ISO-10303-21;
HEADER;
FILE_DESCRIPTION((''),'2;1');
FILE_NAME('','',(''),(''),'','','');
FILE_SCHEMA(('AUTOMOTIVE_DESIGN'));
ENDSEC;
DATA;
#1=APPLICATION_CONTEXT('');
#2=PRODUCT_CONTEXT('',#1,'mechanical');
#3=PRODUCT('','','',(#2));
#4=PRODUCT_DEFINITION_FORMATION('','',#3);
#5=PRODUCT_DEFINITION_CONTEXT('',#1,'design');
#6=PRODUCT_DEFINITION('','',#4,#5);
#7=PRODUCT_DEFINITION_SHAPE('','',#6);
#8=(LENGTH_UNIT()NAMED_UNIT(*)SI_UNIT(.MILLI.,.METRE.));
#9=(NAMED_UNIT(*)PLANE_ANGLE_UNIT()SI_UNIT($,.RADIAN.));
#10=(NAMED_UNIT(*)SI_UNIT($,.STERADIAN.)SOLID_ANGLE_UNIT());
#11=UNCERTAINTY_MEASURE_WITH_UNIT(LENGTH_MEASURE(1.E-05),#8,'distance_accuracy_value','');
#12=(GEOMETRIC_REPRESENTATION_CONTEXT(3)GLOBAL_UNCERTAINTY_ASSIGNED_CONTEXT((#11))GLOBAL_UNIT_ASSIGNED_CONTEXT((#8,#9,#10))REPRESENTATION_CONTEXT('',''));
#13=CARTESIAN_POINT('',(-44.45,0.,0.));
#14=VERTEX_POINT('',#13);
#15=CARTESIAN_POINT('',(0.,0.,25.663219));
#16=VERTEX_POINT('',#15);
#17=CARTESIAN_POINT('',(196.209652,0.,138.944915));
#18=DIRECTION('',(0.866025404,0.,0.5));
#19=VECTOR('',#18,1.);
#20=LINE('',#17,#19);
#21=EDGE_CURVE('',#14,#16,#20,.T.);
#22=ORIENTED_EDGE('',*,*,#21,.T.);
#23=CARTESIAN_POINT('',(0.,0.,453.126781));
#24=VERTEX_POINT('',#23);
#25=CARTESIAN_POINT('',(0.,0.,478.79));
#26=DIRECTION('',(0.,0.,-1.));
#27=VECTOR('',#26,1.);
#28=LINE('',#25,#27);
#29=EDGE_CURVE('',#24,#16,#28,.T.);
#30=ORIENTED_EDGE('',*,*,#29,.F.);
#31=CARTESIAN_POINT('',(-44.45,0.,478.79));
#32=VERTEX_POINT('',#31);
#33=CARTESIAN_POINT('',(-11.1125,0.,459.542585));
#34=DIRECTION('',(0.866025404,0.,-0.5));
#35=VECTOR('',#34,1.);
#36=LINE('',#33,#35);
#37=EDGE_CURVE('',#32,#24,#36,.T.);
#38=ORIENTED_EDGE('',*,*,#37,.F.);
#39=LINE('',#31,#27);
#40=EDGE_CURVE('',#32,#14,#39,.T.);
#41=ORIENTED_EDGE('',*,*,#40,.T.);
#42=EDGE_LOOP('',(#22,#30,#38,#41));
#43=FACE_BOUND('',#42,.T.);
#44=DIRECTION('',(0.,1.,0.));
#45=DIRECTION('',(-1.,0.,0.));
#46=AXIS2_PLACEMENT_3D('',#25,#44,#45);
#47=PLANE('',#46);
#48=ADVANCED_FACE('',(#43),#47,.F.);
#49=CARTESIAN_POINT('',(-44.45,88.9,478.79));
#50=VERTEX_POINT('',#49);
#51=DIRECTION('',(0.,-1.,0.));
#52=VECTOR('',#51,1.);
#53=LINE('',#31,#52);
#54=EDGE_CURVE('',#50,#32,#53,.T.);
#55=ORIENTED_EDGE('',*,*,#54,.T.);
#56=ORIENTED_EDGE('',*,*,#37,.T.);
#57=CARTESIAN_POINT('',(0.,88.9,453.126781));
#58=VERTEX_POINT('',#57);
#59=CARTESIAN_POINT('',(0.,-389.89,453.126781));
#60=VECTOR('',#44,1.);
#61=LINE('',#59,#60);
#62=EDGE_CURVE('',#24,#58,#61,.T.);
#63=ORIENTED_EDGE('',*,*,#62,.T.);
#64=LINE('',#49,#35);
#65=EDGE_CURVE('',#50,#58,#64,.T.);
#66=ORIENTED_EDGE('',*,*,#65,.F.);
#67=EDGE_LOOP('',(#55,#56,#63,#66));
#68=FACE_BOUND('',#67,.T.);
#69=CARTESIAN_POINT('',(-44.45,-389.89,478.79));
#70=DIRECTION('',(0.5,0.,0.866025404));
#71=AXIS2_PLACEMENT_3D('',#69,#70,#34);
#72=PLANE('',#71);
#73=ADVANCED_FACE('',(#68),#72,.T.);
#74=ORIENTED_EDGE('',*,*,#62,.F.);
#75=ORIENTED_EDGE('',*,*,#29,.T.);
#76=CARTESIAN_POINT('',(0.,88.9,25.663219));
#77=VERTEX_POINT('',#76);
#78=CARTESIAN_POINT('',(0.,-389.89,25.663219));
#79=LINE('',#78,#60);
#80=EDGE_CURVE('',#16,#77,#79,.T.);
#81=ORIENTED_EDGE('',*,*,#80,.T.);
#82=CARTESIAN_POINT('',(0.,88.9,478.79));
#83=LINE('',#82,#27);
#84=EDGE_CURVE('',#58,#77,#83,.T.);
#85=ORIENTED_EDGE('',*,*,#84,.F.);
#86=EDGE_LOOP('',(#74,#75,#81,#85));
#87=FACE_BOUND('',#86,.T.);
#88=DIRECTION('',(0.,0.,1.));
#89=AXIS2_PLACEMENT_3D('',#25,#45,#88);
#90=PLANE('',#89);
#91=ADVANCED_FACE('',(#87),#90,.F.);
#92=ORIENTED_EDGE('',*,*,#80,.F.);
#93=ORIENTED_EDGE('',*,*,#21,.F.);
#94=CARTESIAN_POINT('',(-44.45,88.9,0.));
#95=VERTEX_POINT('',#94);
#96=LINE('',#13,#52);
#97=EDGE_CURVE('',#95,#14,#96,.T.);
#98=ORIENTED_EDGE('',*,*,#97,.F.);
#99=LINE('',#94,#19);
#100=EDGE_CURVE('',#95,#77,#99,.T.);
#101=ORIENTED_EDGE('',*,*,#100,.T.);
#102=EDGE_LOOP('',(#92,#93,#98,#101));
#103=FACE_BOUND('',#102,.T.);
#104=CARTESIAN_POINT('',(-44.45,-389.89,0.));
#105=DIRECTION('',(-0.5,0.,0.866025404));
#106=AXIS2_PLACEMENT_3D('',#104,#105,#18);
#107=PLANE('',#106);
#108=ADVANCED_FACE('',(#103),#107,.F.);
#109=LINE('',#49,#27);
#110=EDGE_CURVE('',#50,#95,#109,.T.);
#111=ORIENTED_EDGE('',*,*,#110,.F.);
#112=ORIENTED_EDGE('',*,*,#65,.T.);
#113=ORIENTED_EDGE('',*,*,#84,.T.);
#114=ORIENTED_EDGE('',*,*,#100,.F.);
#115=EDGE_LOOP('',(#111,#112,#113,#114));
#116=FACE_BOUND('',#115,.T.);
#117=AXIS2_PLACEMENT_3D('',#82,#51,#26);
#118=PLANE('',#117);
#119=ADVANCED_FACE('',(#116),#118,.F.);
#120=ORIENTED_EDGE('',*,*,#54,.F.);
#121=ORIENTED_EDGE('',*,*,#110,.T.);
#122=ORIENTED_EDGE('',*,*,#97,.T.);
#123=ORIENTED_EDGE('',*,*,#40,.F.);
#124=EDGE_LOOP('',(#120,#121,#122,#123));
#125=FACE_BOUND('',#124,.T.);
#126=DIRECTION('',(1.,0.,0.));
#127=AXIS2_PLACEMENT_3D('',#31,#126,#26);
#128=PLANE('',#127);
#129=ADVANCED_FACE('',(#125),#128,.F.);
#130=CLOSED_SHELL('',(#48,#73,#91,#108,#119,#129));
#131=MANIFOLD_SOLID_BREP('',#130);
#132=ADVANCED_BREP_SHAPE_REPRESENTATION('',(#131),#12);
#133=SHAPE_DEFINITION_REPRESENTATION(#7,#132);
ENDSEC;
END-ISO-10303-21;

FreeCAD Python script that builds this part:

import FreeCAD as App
import Part
import Sketcher

V = App.Vector
Q = App.Units.Quantity


def add_polygon(sketch, points):
    """Adds a closed chain of lines whose ends are joined by coincident constraints."""
    first, n = sketch.GeometryCount, len(points)
    for a, b in zip(points, points[1:] + points[:1]):
        sketch.addGeometry(Part.LineSegment(App.Vector(*a, 0), App.Vector(*b, 0)), False)
    for i in range(n):
        sketch.addConstraint(Sketcher.Constraint("Coincident", first + i, 2, first + (i + 1) % n, 1))

doc = App.newDocument("Part")
body = doc.addObject("PartDesign::Body", "Body")

# Sketch on XY plane
sketch1 = body.newObject("Sketcher::SketchObject", "Sketch")
sketch1.AttachmentSupport = (doc.getObject("XY_Plane"), [""])
sketch1.MapMode = "FlatFace"
add_polygon(sketch1, [(-44, 89), (-44, 0), (0, 0), (0, 89)])  # lines 0-3
sketch1.addConstraint([
    Sketcher.Constraint("Vertical", 0),
    Sketcher.Constraint("Horizontal", 1),
    Sketcher.Constraint("Vertical", 2),
    Sketcher.Constraint("Horizontal", 3),
    Sketcher.Constraint("Coincident", 1, 2, -1, 1),
    Sketcher.Constraint("DistanceY", 0, 2, 0, 1, Q("3.5 in")),
    Sketcher.Constraint("DistanceX", 1, 1, 1, 2, Q("1.75 in")),
])
pad1 = body.newObject("PartDesign::Pad", "Pad")
pad1.Profile = sketch1
pad1.Length = Q("18.85 in")

# Sketch on XZ plane
sketch2 = body.newObject("Sketcher::SketchObject", "Sketch001")
sketch2.AttachmentSupport = (doc.getObject("XZ_Plane"), [""])
sketch2.MapMode = "FlatFace"
sketch2.AttachmentOffset = App.Placement(V(0, 0, -3.5 * 25.4), App.Rotation())
add_polygon(sketch2, [(-44, 0), (0, 26), (0, 0)])  # lines 0-2
add_polygon(sketch2, [(0, 453), (-44, 479), (0, 479)])  # lines 3-5
sketch2.addConstraint([
    Sketcher.Constraint("Vertical", 1),
    Sketcher.Constraint("Horizontal", 2),
    Sketcher.Constraint("Horizontal", 4),
    Sketcher.Constraint("Vertical", 5),
    Sketcher.Constraint("Coincident", 1, 2, -1, 1),
    Sketcher.Constraint("PointOnObject", 4, 2, -2),
    Sketcher.Constraint("Vertical", 2, 2, 3, 2),
    Sketcher.Constraint("Equal", 1, 5),
    Sketcher.Constraint("Angle", 0, Q("30 deg")),
    Sketcher.Constraint("DistanceX", 2, 2, 2, 1, Q("1.75 in")),
    Sketcher.Constraint("DistanceY", -1, 1, 3, 2, Q("18.85 in")),
])
pocket1 = body.newObject("PartDesign::Pocket", "Pocket")
pocket1.Profile = sketch2
pocket1.Length = Q("18.85 in")
pocket1.Reversed = True

doc.recompute()
